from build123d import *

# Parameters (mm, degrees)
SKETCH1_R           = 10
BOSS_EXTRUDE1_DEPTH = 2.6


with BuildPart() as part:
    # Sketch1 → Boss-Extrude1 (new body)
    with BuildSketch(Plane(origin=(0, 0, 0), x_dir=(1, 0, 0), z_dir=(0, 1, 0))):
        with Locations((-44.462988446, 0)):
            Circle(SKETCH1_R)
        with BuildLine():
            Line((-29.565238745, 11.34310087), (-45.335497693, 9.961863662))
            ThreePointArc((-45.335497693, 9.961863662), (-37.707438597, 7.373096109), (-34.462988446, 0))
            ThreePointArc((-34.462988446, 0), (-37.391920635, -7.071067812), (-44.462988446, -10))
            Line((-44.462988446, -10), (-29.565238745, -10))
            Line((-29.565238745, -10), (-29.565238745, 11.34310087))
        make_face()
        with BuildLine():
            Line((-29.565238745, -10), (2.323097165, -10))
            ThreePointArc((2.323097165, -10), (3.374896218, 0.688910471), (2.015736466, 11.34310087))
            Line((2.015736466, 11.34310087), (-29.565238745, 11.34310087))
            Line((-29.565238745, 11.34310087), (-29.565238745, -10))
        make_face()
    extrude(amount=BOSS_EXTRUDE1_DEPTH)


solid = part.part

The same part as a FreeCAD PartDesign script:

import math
import FreeCAD as App
import Part
import Sketcher
Q = App.Units.Quantity

doc = App.newDocument("Part")
body = doc.addObject("PartDesign::Body", "Body")

sketch1 = doc.addObject("Sketcher::SketchObject", "Sketch")
body.addObject(sketch1)
sketch1.AttachmentSupport = (doc.XZ_Plane, [""])
sketch1.MapMode = "FlatFace"
sketch1.addGeometry([
    Part.ArcOfCircle(Part.Circle(App.Vector(-44, 0, 0), App.Vector(0, 0, 1), 10), math.radians(90), math.radians(265)),
    Part.LineSegment(App.Vector(-44, 10, 0), App.Vector(2, 10, 0)),
    Part.ArcOfCircle(Part.Circle(App.Vector(-44, 0, 0), App.Vector(0, 0, 1), 48), math.radians(-14), math.radians(12)),
    Part.LineSegment(App.Vector(2, -11, 0), App.Vector(-30, -11, 0)),
    Part.LineSegment(App.Vector(-30, -11, 0), App.Vector(-45, -10, 0)),
], False)
sketch1.addConstraint([
    Sketcher.Constraint("Tangent", 0, 1, 1, 1),
    Sketcher.Constraint("Coincident", 1, 2, 2, 2),
    Sketcher.Constraint("Coincident", 2, 1, 3, 1),
    Sketcher.Constraint("Coincident", 3, 2, 4, 1),
    Sketcher.Constraint("Tangent", 4, 2, 0, 2),
    Sketcher.Constraint("Horizontal", 1),
    Sketcher.Constraint("Horizontal", 3),
    Sketcher.Constraint("Coincident", 2, 3, 0, 3),
    Sketcher.Constraint("PointOnObject", 0, 3, -1),
    Sketcher.Constraint("Radius", 0, Q("10 mm")),
    Sketcher.Constraint("Radius", 2, Q("47.842845 mm")),
    Sketcher.Constraint("DistanceY", 2, 1, -1, 1, Q("11.343101 mm")),
    Sketcher.Constraint("Distance", 4, Q("15.830631 mm")),
    Sketcher.Constraint("DistanceX", 0, 3, -1, 1, Q("44.462988 mm")),
])
pad1 = doc.addObject("PartDesign::Pad", "Pad")
body.addObject(pad1)
pad1.Profile = sketch1
pad1.Length = 2.6
pad1.Reversed = True

doc.recompute()
